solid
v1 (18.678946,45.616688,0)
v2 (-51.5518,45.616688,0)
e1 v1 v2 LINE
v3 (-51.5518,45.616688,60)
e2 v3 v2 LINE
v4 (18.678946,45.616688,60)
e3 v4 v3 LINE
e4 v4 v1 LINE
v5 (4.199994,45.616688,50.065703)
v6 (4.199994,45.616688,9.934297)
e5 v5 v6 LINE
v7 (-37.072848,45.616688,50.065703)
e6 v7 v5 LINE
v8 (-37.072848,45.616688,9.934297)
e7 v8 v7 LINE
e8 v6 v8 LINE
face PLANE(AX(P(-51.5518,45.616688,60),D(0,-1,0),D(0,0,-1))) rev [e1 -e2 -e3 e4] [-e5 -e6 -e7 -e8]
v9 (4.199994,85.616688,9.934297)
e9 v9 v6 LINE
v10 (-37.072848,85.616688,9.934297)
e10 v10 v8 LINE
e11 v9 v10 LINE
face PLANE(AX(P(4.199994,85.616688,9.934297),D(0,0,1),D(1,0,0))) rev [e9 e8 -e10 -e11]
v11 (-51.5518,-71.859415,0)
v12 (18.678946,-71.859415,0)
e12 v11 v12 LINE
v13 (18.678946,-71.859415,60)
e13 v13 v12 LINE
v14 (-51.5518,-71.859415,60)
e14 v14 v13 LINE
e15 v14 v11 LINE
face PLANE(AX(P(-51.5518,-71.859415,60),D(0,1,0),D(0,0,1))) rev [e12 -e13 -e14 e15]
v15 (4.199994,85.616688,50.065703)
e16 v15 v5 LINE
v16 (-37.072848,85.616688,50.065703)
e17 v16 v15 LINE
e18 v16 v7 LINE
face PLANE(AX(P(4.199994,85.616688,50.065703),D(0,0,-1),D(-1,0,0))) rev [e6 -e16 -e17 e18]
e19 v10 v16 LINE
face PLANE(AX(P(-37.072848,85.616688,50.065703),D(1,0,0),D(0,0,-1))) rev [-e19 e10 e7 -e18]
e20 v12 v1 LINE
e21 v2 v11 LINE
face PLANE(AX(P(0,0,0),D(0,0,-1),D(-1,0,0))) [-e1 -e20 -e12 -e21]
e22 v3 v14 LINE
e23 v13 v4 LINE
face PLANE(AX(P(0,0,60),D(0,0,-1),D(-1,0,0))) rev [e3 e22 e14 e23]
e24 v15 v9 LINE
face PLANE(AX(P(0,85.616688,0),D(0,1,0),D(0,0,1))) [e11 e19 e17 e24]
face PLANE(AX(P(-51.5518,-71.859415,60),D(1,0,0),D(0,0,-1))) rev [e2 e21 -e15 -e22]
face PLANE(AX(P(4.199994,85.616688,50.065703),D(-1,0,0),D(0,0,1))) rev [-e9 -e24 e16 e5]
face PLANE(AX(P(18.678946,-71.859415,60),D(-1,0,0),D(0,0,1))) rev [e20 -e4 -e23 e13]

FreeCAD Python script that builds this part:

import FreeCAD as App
import Part
import Sketcher

V = App.Vector
Q = App.Units.Quantity

doc = App.newDocument("Part")
body = doc.addObject("PartDesign::Body", "Body")

sketch1 = body.newObject("Sketcher::SketchObject", "Sketch")
sketch1.AttachmentSupport = (doc.getObject("XY_Plane"), [""])
sketch1.MapMode = "FlatFace"
sketch1.addGeometry([
    Part.LineSegment(V(-52, 46, 0), V(-52, -72, 0)),
    Part.LineSegment(V(-52, -72, 0), V(19, -72, 0)),
    Part.LineSegment(V(19, -72, 0), V(19, 46, 0)),
    Part.LineSegment(V(19, 46, 0), V(-52, 46, 0)),
], False)
sketch1.addConstraint([
    Sketcher.Constraint("Coincident", 0, 2, 1, 1),
    Sketcher.Constraint("Coincident", 1, 2, 2, 1),
    Sketcher.Constraint("Coincident", 2, 2, 3, 1),
    Sketcher.Constraint("Coincident", 3, 2, 0, 1),
    Sketcher.Constraint("Vertical", 0),
    Sketcher.Constraint("Horizontal", 1),
    Sketcher.Constraint("Vertical", 2),
    Sketcher.Constraint("Horizontal", 3),
    Sketcher.Constraint("DistanceX", 0, 2, -1, 1, Q("51.5518 mm")),
    Sketcher.Constraint("DistanceX", 1, 1, 1, 2, Q("70.230746 mm")),
    Sketcher.Constraint("DistanceY", 0, 2, 0, 1, Q("117.476103 mm")),
    Sketcher.Constraint("DistanceY", -1, 1, 2, 2, Q("45.616688 mm")),
])
pad1 = body.newObject("PartDesign::Pad", "Pad")
pad1.Profile = sketch1
pad1.Length = 60

sketch2 = body.newObject("Sketcher::SketchObject", "Sketch001")
sketch2.AttachmentSupport = (doc.getObject("XZ_Plane"), [""])
sketch2.MapMode = "FlatFace"
sketch2.AttachmentOffset = App.Placement(V(0, 0, -45.616688), App.Rotation())
sketch2.addGeometry([
    Part.LineSegment(V(-37, 10, 0), V(-37, 50, 0)),
    Part.LineSegment(V(-37, 50, 0), V(4, 50, 0)),
    Part.LineSegment(V(4, 50, 0), V(4, 10, 0)),
    Part.LineSegment(V(4, 10, 0), V(-37, 10, 0)),
], False)
sketch2.addConstraint([
    Sketcher.Constraint("Coincident", 0, 2, 1, 1),
    Sketcher.Constraint("Coincident", 1, 2, 2, 1),
    Sketcher.Constraint("Coincident", 2, 2, 3, 1),
    Sketcher.Constraint("Coincident", 3, 2, 0, 1),
    Sketcher.Constraint("Vertical", 0),
    Sketcher.Constraint("Horizontal", 1),
    Sketcher.Constraint("Vertical", 2),
    Sketcher.Constraint("Horizontal", 3),
    Sketcher.Constraint("DistanceX", 1, 1, 1, 2, Q("41.272842 mm")),
    Sketcher.Constraint("DistanceY", 0, 1, 0, 2, Q("40.131407 mm")),
    Sketcher.Constraint("DistanceX", 0, 2, -1, 1, Q("37.072848 mm")),
    Sketcher.Constraint("DistanceY", -1, 1, 0, 2, Q("50.065703 mm")),
])
pad2 = body.newObject("PartDesign::Pad", "Pad001")
pad2.Profile = sketch2
pad2.Length = 40
pad2.Reversed = True

doc.recompute()
